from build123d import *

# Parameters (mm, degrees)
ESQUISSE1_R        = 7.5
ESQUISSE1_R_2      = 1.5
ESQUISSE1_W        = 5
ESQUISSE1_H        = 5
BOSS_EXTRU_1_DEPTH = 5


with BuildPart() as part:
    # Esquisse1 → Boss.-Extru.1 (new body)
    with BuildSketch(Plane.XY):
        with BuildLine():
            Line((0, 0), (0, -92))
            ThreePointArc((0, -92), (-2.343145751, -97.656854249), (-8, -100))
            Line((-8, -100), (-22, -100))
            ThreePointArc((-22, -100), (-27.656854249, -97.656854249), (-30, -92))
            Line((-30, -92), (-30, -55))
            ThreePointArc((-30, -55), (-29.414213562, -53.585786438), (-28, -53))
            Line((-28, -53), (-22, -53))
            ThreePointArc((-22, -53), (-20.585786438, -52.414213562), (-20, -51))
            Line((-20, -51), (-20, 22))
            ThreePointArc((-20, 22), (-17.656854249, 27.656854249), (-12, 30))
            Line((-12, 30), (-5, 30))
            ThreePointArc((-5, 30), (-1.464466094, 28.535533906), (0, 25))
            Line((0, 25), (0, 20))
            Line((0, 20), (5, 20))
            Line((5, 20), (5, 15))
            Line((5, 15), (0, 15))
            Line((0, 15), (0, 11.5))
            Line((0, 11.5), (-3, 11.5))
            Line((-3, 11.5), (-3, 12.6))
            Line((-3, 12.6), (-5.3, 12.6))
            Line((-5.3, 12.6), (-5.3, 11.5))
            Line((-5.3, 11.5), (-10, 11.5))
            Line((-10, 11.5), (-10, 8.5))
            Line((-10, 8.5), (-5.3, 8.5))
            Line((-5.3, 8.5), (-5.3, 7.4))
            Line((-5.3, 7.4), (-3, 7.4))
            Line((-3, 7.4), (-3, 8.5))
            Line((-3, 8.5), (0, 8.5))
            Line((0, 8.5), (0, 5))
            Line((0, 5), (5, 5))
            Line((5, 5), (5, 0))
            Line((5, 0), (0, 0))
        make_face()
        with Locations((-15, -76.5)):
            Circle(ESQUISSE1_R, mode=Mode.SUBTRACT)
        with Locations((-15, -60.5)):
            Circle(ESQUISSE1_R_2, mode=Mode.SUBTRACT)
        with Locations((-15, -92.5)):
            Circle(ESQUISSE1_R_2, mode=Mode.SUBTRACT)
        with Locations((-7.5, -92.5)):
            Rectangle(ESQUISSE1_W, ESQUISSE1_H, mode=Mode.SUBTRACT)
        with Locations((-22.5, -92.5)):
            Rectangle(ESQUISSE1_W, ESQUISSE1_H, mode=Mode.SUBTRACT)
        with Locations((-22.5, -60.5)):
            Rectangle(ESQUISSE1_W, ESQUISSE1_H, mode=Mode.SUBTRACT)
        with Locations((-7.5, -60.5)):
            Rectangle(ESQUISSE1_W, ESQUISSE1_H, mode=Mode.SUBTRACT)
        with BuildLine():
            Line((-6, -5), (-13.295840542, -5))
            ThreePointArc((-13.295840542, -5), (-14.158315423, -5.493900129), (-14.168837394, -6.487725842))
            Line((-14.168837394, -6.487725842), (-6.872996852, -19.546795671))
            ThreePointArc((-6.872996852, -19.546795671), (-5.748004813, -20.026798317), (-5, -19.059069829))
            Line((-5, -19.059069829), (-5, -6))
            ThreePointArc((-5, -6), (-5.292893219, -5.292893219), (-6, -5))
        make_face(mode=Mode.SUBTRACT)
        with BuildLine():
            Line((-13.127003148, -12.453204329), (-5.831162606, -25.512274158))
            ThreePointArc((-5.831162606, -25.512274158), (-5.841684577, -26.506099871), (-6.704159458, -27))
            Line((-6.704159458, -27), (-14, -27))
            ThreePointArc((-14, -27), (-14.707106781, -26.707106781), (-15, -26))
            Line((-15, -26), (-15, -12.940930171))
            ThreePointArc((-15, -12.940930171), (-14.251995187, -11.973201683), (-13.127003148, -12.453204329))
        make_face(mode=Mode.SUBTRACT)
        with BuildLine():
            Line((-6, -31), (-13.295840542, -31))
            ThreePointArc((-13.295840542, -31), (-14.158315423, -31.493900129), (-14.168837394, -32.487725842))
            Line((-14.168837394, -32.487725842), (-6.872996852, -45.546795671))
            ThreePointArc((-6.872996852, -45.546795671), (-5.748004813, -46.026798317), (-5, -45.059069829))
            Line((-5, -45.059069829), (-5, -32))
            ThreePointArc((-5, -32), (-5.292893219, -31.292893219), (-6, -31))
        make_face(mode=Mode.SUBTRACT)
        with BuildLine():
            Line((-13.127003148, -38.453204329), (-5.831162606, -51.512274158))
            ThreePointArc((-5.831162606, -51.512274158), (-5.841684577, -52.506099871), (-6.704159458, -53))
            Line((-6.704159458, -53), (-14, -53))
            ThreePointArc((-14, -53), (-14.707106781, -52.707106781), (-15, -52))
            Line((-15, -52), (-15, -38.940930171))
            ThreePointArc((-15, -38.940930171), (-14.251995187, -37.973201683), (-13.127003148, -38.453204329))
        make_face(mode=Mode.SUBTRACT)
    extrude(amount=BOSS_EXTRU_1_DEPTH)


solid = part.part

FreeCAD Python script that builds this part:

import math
import FreeCAD as App
import Part
import Sketcher
from FreeCAD import Vector


def add_polygon(sketch, points):
    """Adds a closed chain of lines whose ends are joined by coincident constraints."""
    first, n = sketch.GeometryCount, len(points)
    for a, b in zip(points, points[1:] + points[:1]):
        sketch.addGeometry(Part.LineSegment(App.Vector(*a, 0), App.Vector(*b, 0)), False)
    for i in range(n):
        sketch.addConstraint(Sketcher.Constraint("Coincident", first + i, 2, first + (i + 1) % n, 1))

doc = App.newDocument("Part")
params = doc.addObject("Spreadsheet::Sheet", "Params")
for row, (alias, value) in enumerate([
    ("sketch1_diameter", "3 mm"),
    ("sketch1_diameter2", "15 mm"),
    ("sketch1_radius", "5 mm"),
    ("sketch1_radius2", "8 mm"),
    ("sketch1_radius3", "2 mm"),
    ("pad1_length", "5 mm"),
], start=1):
    params.set(f"A{row}", alias)
    params.set(f"B{row}", "=" + value)
    params.setAlias(f"B{row}", alias)

body = doc.addObject("PartDesign::Body", "Body")

# Sketch on XY plane
sketch1 = body.newObject("Sketcher::SketchObject", "Sketch")
sketch1.AttachmentSupport = (doc.getObject("XY_Plane"), [""])
sketch1.MapMode = "FlatFace"
sketch1.addGeometry(Part.LineSegment(Vector(0, -92, 0), Vector(0, 0, 0)), False)  # 0
sketch1.addGeometry(Part.LineSegment(Vector(0, 0, 0), Vector(5, 0, 0)), False)  # 1
sketch1.addGeometry(Part.LineSegment(Vector(5, 0, 0), Vector(5, 5, 0)), False)  # 2
sketch1.addGeometry(Part.LineSegment(Vector(5, 5, 0), Vector(0, 5, 0)), False)  # 3
sketch1.addGeometry(Part.LineSegment(Vector(0, 5, 0), Vector(0, 8.5, 0)), False)  # 4
sketch1.addGeometry(Part.LineSegment(Vector(0, 8.5, 0), Vector(-3, 8.5, 0)), False)  # 5
sketch1.addGeometry(Part.LineSegment(Vector(-3, 8.5, 0), Vector(-3, 7.4, 0)), False)  # 6
sketch1.addGeometry(Part.LineSegment(Vector(-3, 7.4, 0), Vector(-5.3, 7.4, 0)), False)  # 7
sketch1.addGeometry(Part.LineSegment(Vector(-5.3, 7.4, 0), Vector(-5.3, 8.5, 0)), False)  # 8
sketch1.addGeometry(Part.LineSegment(Vector(-5.3, 8.5, 0), Vector(-10, 8.5, 0)), False)  # 9
sketch1.addGeometry(Part.LineSegment(Vector(-10, 8.5, 0), Vector(-10, 11.5, 0)), False)  # 10
sketch1.addGeometry(Part.LineSegment(Vector(-10, 11.5, 0), Vector(-5.3, 11.5, 0)), False)  # 11
sketch1.addGeometry(Part.LineSegment(Vector(-5.3, 11.5, 0), Vector(-5.3, 12.6, 0)), False)  # 12
sketch1.addGeometry(Part.LineSegment(Vector(-5.3, 12.6, 0), Vector(-3, 12.6, 0)), False)  # 13
sketch1.addGeometry(Part.LineSegment(Vector(-3, 12.6, 0), Vector(-3, 11.5, 0)), False)  # 14
sketch1.addGeometry(Part.LineSegment(Vector(-3, 11.5, 0), Vector(0, 11.5, 0)), False)  # 15
sketch1.addGeometry(Part.LineSegment(Vector(0, 11.5, 0), Vector(0, 15, 0)), False)  # 16
sketch1.addGeometry(Part.LineSegment(Vector(0, 15, 0), Vector(5, 15, 0)), False)  # 17
sketch1.addGeometry(Part.LineSegment(Vector(5, 15, 0), Vector(5, 20, 0)), False)  # 18
sketch1.addGeometry(Part.LineSegment(Vector(5, 20, 0), Vector(0, 20, 0)), False)  # 19
sketch1.addGeometry(Part.LineSegment(Vector(0, 20, 0), Vector(0, 25, 0)), False)  # 20
sketch1.addGeometry(Part.ArcOfCircle(Part.Circle(Vector(-5, 25, 0), Vector(0, 0, 1), 5), math.radians(0), math.radians(90)), False)  # 21
sketch1.addGeometry(Part.LineSegment(Vector(-5, 30, 0), Vector(-12, 30, 0)), False)  # 22
sketch1.addGeometry(Part.ArcOfCircle(Part.Circle(Vector(-12, 22, 0), Vector(0, 0, 1), 8), math.radians(90), math.radians(180)), False)  # 23
sketch1.addGeometry(Part.LineSegment(Vector(-20, 22, 0), Vector(-20, -51, 0)), False)  # 24
sketch1.addGeometry(Part.ArcOfCircle(Part.Circle(Vector(-22, -51, 0), Vector(0, 0, 1), 2), math.radians(-90), math.radians(0)), False)  # 25
sketch1.addGeometry(Part.LineSegment(Vector(-22, -53, 0), Vector(-28, -53, 0)), False)  # 26
sketch1.addGeometry(Part.ArcOfCircle(Part.Circle(Vector(-28, -55, 0), Vector(0, 0, 1), 2), math.radians(90), math.radians(180)), False)  # 27
sketch1.addGeometry(Part.LineSegment(Vector(-30, -55, 0), Vector(-30, -92, 0)), False)  # 28
sketch1.addGeometry(Part.ArcOfCircle(Part.Circle(Vector(-22, -92, 0), Vector(0, 0, 1), 8), math.radians(-180), math.radians(-90)), False)  # 29
sketch1.addGeometry(Part.LineSegment(Vector(-22, -100, 0), Vector(-8, -100, 0)), False)  # 30
sketch1.addGeometry(Part.ArcOfCircle(Part.Circle(Vector(-8, -92, 0), Vector(0, 0, 1), 8), math.radians(-90), math.radians(0)), False)  # 31
add_polygon(sketch1, [(-10, -95), (-10, -90), (-5, -90), (-5, -95)])  # lines 32-35
add_polygon(sketch1, [(-10, -63), (-10, -58), (-5, -58), (-5, -63)])  # lines 36-39
sketch1.addGeometry(Part.Circle(Vector(-15, -92.5, 0), Vector(0, 0, 1), 1.5), False)  # 40
sketch1.addGeometry(Part.Circle(Vector(-15, -76.5, 0), Vector(0, 0, 1), 7.5), False)  # 41
add_polygon(sketch1, [(-25, -95), (-25, -90), (-20, -90), (-20, -95)])  # lines 42-45
sketch1.addGeometry(Part.Circle(Vector(-15, -60.5, 0), Vector(0, 0, 1), 1.5), False)  # 46
add_polygon(sketch1, [(-25, -63), (-25, -58), (-20, -58), (-20, -63)])  # lines 47-50
sketch1.addGeometry(Part.ArcOfCircle(Part.Circle(Vector(-6, -32, 0), Vector(0, 0, 1), 1), math.radians(0), math.radians(90)), False)  # 51
sketch1.addGeometry(Part.LineSegment(Vector(-5, -32, 0), Vector(-5, -45.1, 0)), False)  # 52
sketch1.addGeometry(Part.ArcOfCircle(Part.Circle(Vector(-6, -45.1, 0), Vector(0, 0, 1), 1), math.radians(-151), math.radians(0)), False)  # 53
sketch1.addGeometry(Part.LineSegment(Vector(-6.9, -45.5, 0), Vector(-14.2, -32.5, 0)), False)  # 54
sketch1.addGeometry(Part.ArcOfCircle(Part.Circle(Vector(-13.3, -32, 0), Vector(0, 0, 1), 1), math.radians(90), math.radians(209)), False)  # 55
sketch1.addGeometry(Part.LineSegment(Vector(-13.3, -31, 0), Vector(-6, -31, 0)), False)  # 56
sketch1.addGeometry(Part.LineSegment(Vector(-13.1, -38.5, 0), Vector(-5.8, -51.5, 0)), False)  # 57
sketch1.addGeometry(Part.ArcOfCircle(Part.Circle(Vector(-6.7, -52, 0), Vector(0, 0, 1), 1), math.radians(-90), math.radians(29)), False)  # 58
sketch1.addGeometry(Part.LineSegment(Vector(-6.7, -53, 0), Vector(-14, -53, 0)), False)  # 59
sketch1.addGeometry(Part.ArcOfCircle(Part.Circle(Vector(-14, -52, 0), Vector(0, 0, 1), 1), math.radians(-180), math.radians(-90)), False)  # 60
sketch1.addGeometry(Part.LineSegment(Vector(-15, -52, 0), Vector(-15, -38.9, 0)), False)  # 61
sketch1.addGeometry(Part.ArcOfCircle(Part.Circle(Vector(-14, -38.9, 0), Vector(0, 0, 1), 1), math.radians(29), math.radians(180)), False)  # 62
sketch1.addGeometry(Part.ArcOfCircle(Part.Circle(Vector(-6, -6, 0), Vector(0, 0, 1), 1), math.radians(0), math.radians(90)), False)  # 63
sketch1.addGeometry(Part.LineSegment(Vector(-5, -6, 0), Vector(-5, -19.1, 0)), False)  # 64
sketch1.addGeometry(Part.ArcOfCircle(Part.Circle(Vector(-6, -19.1, 0), Vector(0, 0, 1), 1), math.radians(-151), math.radians(0)), False)  # 65
sketch1.addGeometry(Part.LineSegment(Vector(-6.9, -19.5, 0), Vector(-14.2, -6.5, 0)), False)  # 66
sketch1.addGeometry(Part.ArcOfCircle(Part.Circle(Vector(-13.3, -6, 0), Vector(0, 0, 1), 1), math.radians(90), math.radians(209)), False)  # 67
sketch1.addGeometry(Part.LineSegment(Vector(-13.3, -5, 0), Vector(-6, -5, 0)), False)  # 68
sketch1.addGeometry(Part.LineSegment(Vector(-13.1, -12.5, 0), Vector(-5.8, -25.5, 0)), False)  # 69
sketch1.addGeometry(Part.ArcOfCircle(Part.Circle(Vector(-6.7, -26, 0), Vector(0, 0, 1), 1), math.radians(-90), math.radians(29)), False)  # 70
sketch1.addGeometry(Part.LineSegment(Vector(-6.7, -27, 0), Vector(-14, -27, 0)), False)  # 71
sketch1.addGeometry(Part.ArcOfCircle(Part.Circle(Vector(-14, -26, 0), Vector(0, 0, 1), 1), math.radians(-180), math.radians(-90)), False)  # 72
sketch1.addGeometry(Part.LineSegment(Vector(-15, -26, 0), Vector(-15, -12.9, 0)), False)  # 73
sketch1.addGeometry(Part.ArcOfCircle(Part.Circle(Vector(-14, -12.9, 0), Vector(0, 0, 1), 1), math.radians(29), math.radians(180)), False)  # 74
sketch1.addConstraint(Sketcher.Constraint("Coincident", 0, 2, 1, 1))
sketch1.addConstraint(Sketcher.Constraint("Coincident", 1, 2, 2, 1))
sketch1.addConstraint(Sketcher.Constraint("Coincident", 2, 2, 3, 1))
sketch1.addConstraint(Sketcher.Constraint("Coincident", 3, 2, 4, 1))
sketch1.addConstraint(Sketcher.Constraint("Coincident", 4, 2, 5, 1))
sketch1.addConstraint(Sketcher.Constraint("Coincident", 5, 2, 6, 1))
sketch1.addConstraint(Sketcher.Constraint("Coincident", 6, 2, 7, 1))
sketch1.addConstraint(Sketcher.Constraint("Coincident", 7, 2, 8, 1))
sketch1.addConstraint(Sketcher.Constraint("Coincident", 8, 2, 9, 1))
sketch1.addConstraint(Sketcher.Constraint("Coincident", 9, 2, 10, 1))
sketch1.addConstraint(Sketcher.Constraint("Coincident", 10, 2, 11, 1))
sketch1.addConstraint(Sketcher.Constraint("Coincident", 11, 2, 12, 1))
sketch1.addConstraint(Sketcher.Constraint("Coincident", 12, 2, 13, 1))
sketch1.addConstraint(Sketcher.Constraint("Coincident", 13, 2, 14, 1))
sketch1.addConstraint(Sketcher.Constraint("Coincident", 14, 2, 15, 1))
sketch1.addConstraint(Sketcher.Constraint("Coincident", 15, 2, 16, 1))
sketch1.addConstraint(Sketcher.Constraint("Coincident", 16, 2, 17, 1))
sketch1.addConstraint(Sketcher.Constraint("Coincident", 17, 2, 18, 1))
sketch1.addConstraint(Sketcher.Constraint("Coincident", 18, 2, 19, 1))
sketch1.addConstraint(Sketcher.Constraint("Coincident", 19, 2, 20, 1))
sketch1.addConstraint(Sketcher.Constraint("Tangent", 20, 2, 21, 1))
sketch1.addConstraint(Sketcher.Constraint("Tangent", 21, 2, 22, 1))
sketch1.addConstraint(Sketcher.Constraint("Tangent", 22, 2, 23, 1))
sketch1.addConstraint(Sketcher.Constraint("Tangent", 23, 2, 24, 1))
sketch1.addConstraint(Sketcher.Constraint("Tangent", 24, 2, 25, 2))
sketch1.addConstraint(Sketcher.Constraint("Tangent", 25, 1, 26, 1))
sketch1.addConstraint(Sketcher.Constraint("Tangent", 26, 2, 27, 1))
sketch1.addConstraint(Sketcher.Constraint("Tangent", 27, 2, 28, 1))
sketch1.addConstraint(Sketcher.Constraint("Tangent", 28, 2, 29, 1))
sketch1.addConstraint(Sketcher.Constraint("Tangent", 29, 2, 30, 1))
sketch1.addConstraint(Sketcher.Constraint("Tangent", 30, 2, 31, 1))
sketch1.addConstraint(Sketcher.Constraint("Tangent", 31, 2, 0, 1))
sketch1.addConstraint(Sketcher.Constraint("Tangent", 51, 1, 52, 1))
sketch1.addConstraint(Sketcher.Constraint("Tangent", 52, 2, 53, 2))
sketch1.addConstraint(Sketcher.Constraint("Tangent", 53, 1, 54, 1))
sketch1.addConstraint(Sketcher.Constraint("Tangent", 54, 2, 55, 2))
sketch1.addConstraint(Sketcher.Constraint("Tangent", 55, 1, 56, 1))
sketch1.addConstraint(Sketcher.Constraint("Tangent", 56, 2, 51, 2))
sketch1.addConstraint(Sketcher.Constraint("Tangent", 57, 2, 58, 2))
sketch1.addConstraint(Sketcher.Constraint("Tangent", 58, 1, 59, 1))
sketch1.addConstraint(Sketcher.Constraint("Tangent", 59, 2, 60, 2))
sketch1.addConstraint(Sketcher.Constraint("Tangent", 60, 1, 61, 1))
sketch1.addConstraint(Sketcher.Constraint("Tangent", 61, 2, 62, 2))
sketch1.addConstraint(Sketcher.Constraint("Tangent", 62, 1, 57, 1))
sketch1.addConstraint(Sketcher.Constraint("Tangent", 63, 1, 64, 1))
sketch1.addConstraint(Sketcher.Constraint("Tangent", 64, 2, 65, 2))
sketch1.addConstraint(Sketcher.Constraint("Tangent", 65, 1, 66, 1))
sketch1.addConstraint(Sketcher.Constraint("Tangent", 66, 2, 67, 2))
sketch1.addConstraint(Sketcher.Constraint("Tangent", 67, 1, 68, 1))
sketch1.addConstraint(Sketcher.Constraint("Tangent", 68, 2, 63, 2))
sketch1.addConstraint(Sketcher.Constraint("Tangent", 69, 2, 70, 2))
sketch1.addConstraint(Sketcher.Constraint("Tangent", 70, 1, 71, 1))
sketch1.addConstraint(Sketcher.Constraint("Tangent", 71, 2, 72, 2))
sketch1.addConstraint(Sketcher.Constraint("Tangent", 72, 1, 73, 1))
sketch1.addConstraint(Sketcher.Constraint("Tangent", 73, 2, 74, 2))
sketch1.addConstraint(Sketcher.Constraint("Tangent", 74, 1, 69, 1))
sketch1.addConstraint(Sketcher.Constraint("Vertical", 0))
sketch1.addConstraint(Sketcher.Constraint("Horizontal", 1))
sketch1.addConstraint(Sketcher.Constraint("Vertical", 2))
sketch1.addConstraint(Sketcher.Constraint("Horizontal", 3))
sketch1.addConstraint(Sketcher.Constraint("Vertical", 4))
sketch1.addConstraint(Sketcher.Constraint("Horizontal", 5))
sketch1.addConstraint(Sketcher.Constraint("Vertical", 6))
sketch1.addConstraint(Sketcher.Constraint("Horizontal", 7))
sketch1.addConstraint(Sketcher.Constraint("Vertical", 8))
sketch1.addConstraint(Sketcher.Constraint("Horizontal", 9))
sketch1.addConstraint(Sketcher.Constraint("Vertical", 10))
sketch1.addConstraint(Sketcher.Constraint("Horizontal", 11))
sketch1.addConstraint(Sketcher.Constraint("Vertical", 12))
sketch1.addConstraint(Sketcher.Constraint("Horizontal", 13))
sketch1.addConstraint(Sketcher.Constraint("Vertical", 14))
sketch1.addConstraint(Sketcher.Constraint("Horizontal", 15))
sketch1.addConstraint(Sketcher.Constraint("Vertical", 16))
sketch1.addConstraint(Sketcher.Constraint("Horizontal", 17))
sketch1.addConstraint(Sketcher.Constraint("Vertical", 18))
sketch1.addConstraint(Sketcher.Constraint("Horizontal", 19))
sketch1.addConstraint(Sketcher.Constraint("Vertical", 20))
sketch1.addConstraint(Sketcher.Constraint("Horizontal", 22))
sketch1.addConstraint(Sketcher.Constraint("Vertical", 24))
sketch1.addConstraint(Sketcher.Constraint("Horizontal", 26))
sketch1.addConstraint(Sketcher.Constraint("Vertical", 28))
sketch1.addConstraint(Sketcher.Constraint("Horizontal", 30))
sketch1.addConstraint(Sketcher.Constraint("Vertical", 32))
sketch1.addConstraint(Sketcher.Constraint("Horizontal", 33))
sketch1.addConstraint(Sketcher.Constraint("Vertical", 34))
sketch1.addConstraint(Sketcher.Constraint("Horizontal", 35))
sketch1.addConstraint(Sketcher.Constraint("Vertical", 36))
sketch1.addConstraint(Sketcher.Constraint("Horizontal", 37))
sketch1.addConstraint(Sketcher.Constraint("Vertical", 38))
sketch1.addConstraint(Sketcher.Constraint("Horizontal", 39))
sketch1.addConstraint(Sketcher.Constraint("Vertical", 42))
sketch1.addConstraint(Sketcher.Constraint("Horizontal", 43))
sketch1.addConstraint(Sketcher.Constraint("Vertical", 44))
sketch1.addConstraint(Sketcher.Constraint("Horizontal", 45))
sketch1.addConstraint(Sketcher.Constraint("Vertical", 47))
sketch1.addConstraint(Sketcher.Constraint("Horizontal", 48))
sketch1.addConstraint(Sketcher.Constraint("Vertical", 49))
sketch1.addConstraint(Sketcher.Constraint("Horizontal", 50))
sketch1.addConstraint(Sketcher.Constraint("Vertical", 52))
sketch1.addConstraint(Sketcher.Constraint("Horizontal", 56))
sketch1.addConstraint(Sketcher.Constraint("Horizontal", 59))
sketch1.addConstraint(Sketcher.Constraint("Vertical", 61))
sketch1.addConstraint(Sketcher.Constraint("Vertical", 64))
sketch1.addConstraint(Sketcher.Constraint("Horizontal", 68))
sketch1.addConstraint(Sketcher.Constraint("Horizontal", 71))
sketch1.addConstraint(Sketcher.Constraint("Vertical", 73))
sketch1.addConstraint(Sketcher.Constraint("Coincident", 0, 2, -1, 1))
sketch1.addConstraint(Sketcher.Constraint("Equal", 25, 27))
sketch1.addConstraint(Sketcher.Constraint("Equal", 23, 29))
sketch1.addConstraint(Sketcher.Constraint("Equal", 29, 31))
sketch1.addConstraint(Sketcher.Constraint("Equal", 40, 46))
sketch1.addConstraint(Sketcher.Constraint("Equal", 51, 53))
sketch1.addConstraint(Sketcher.Constraint("Equal", 53, 55))
sketch1.addConstraint(Sketcher.Constraint("Equal", 55, 58))
sketch1.addConstraint(Sketcher.Constraint("Equal", 58, 60))
sketch1.addConstraint(Sketcher.Constraint("Equal", 60, 62))
sketch1.addConstraint(Sketcher.Constraint("Equal", 62, 63))
sketch1.addConstraint(Sketcher.Constraint("Equal", 63, 65))
sketch1.addConstraint(Sketcher.Constraint("Equal", 65, 67))
sketch1.addConstraint(Sketcher.Constraint("Equal", 67, 70))
sketch1.addConstraint(Sketcher.Constraint("Equal", 70, 72))
sketch1.addConstraint(Sketcher.Constraint("Equal", 72, 74))
sketch1.addConstraint(Sketcher.Constraint("PointOnObject", 3, 2, -2))
sketch1.addConstraint(Sketcher.Constraint("PointOnObject", 15, 2, -2))
sketch1.addConstraint(Sketcher.Constraint("PointOnObject", 19, 2, -2))
sketch1.addConstraint(Sketcher.Constraint("Parallel", 54, 57))
sketch1.addConstraint(Sketcher.Constraint("Parallel", 57, 66))
sketch1.addConstraint(Sketcher.Constraint("Parallel", 66, 69))
sketch1.addConstraint(Sketcher.Constraint("Horizontal", 5, 2, 8, 2))
sketch1.addConstraint(Sketcher.Constraint("Horizontal", 11, 2, 14, 2))
sketch1.addConstraint(Sketcher.Constraint("Horizontal", 33, 2, 42, 2))
sketch1.addConstraint(Sketcher.Constraint("Horizontal", 35, 2, 44, 2))
sketch1.addConstraint(Sketcher.Constraint("Horizontal", 37, 2, 47, 2))
sketch1.addConstraint(Sketcher.Constraint("Horizontal", 39, 2, 49, 2))
sketch1.addConstraint(Sketcher.Constraint("Horizontal", 26, 2, 58, 1))
sketch1.addConstraint(Sketcher.Constraint("Vertical", 25, 3, 29, 3))
sketch1.addConstraint(Sketcher.Constraint("Vertical", 40, 3, 41, 3))
sketch1.addConstraint(Sketcher.Constraint("Vertical", 41, 3, 46, 3))
sketch1.addConstraint(Sketcher.Constraint("Vertical", 53, 3, 63, 3))
sketch1.addConstraint(Sketcher.Constraint("Vertical", 55, 3, 67, 3))
sketch1.addConstraint(Sketcher.Constraint("Vertical", 58, 3, 70, 3))
sketch1.addConstraint(Sketcher.Constraint("Vertical", 62, 3, 72, 3))
sketch1.addConstraint(Sketcher.Constraint("Vertical", 8, 2, 11, 2))
sketch1.addConstraint(Sketcher.Constraint("Vertical", 6, 2, 13, 2))
sketch1.addConstraint(Sketcher.Constraint("Vertical", 2, 2, 17, 2))
sketch1.addConstraint(Sketcher.Constraint("Vertical", 10, 2, 32, 2))
sketch1.addConstraint(Sketcher.Constraint("Vertical", 21, 2, 33, 2))
sketch1.addConstraint(Sketcher.Constraint("Vertical", 35, 2, 36, 2))
sketch1.addConstraint(Sketcher.Constraint("Vertical", 34, 2, 37, 2))
sketch1.addConstraint(Sketcher.Constraint("Vertical", 24, 2, 43, 2))
sketch1.addConstraint(Sketcher.Constraint("Vertical", 45, 2, 47, 2))
sketch1.addConstraint(Sketcher.Constraint("Vertical", 44, 2, 48, 2))
sketch1.addConstraint(Sketcher.Constraint("Vertical", 38, 2, 51, 1))
sketch1.addConstraint(Sketcher.Constraint("Vertical", 46, 3, 60, 1))
sketch1.addConstraint(Sketcher.Constraint("Equal", 19, 33))
sketch1.addConstraint(Sketcher.Constraint("Equal", 39, 43))
sketch1.addConstraint(Sketcher.Constraint("Equal", 56, 59))
sketch1.addConstraint(Sketcher.Constraint("Equal", 50, 2))
sketch1.addConstraint(Sketcher.Constraint("Equal", 15, 10))
sketch1.addConstraint(Sketcher.Constraint("Equal", 8, 12))
sketch1.addConstraint(Sketcher.Constraint("Equal", 4, 16))
sketch1.addConstraint(Sketcher.Constraint("Equal", 2, 18))
sketch1.addConstraint(Sketcher.Constraint("Equal", 18, 20))
sketch1.addConstraint(Sketcher.Constraint("Equal", 20, 32))
sketch1.addConstraint(Sketcher.Constraint("Equal", 34, 36))
sketch1.addConstraint(Sketcher.Constraint("Diameter", 40, 3.0))
sketch1.addConstraint(Sketcher.Constraint("Diameter", 41, 15.0))
sketch1.addConstraint(Sketcher.Constraint("Radius", 21, 5.0))
sketch1.addConstraint(Sketcher.Constraint("Radius", 23, 8.0))
sketch1.addConstraint(Sketcher.Constraint("Radius", 25, 2.0))
sketch1.addConstraint(Sketcher.Constraint("Radius", 51, 1.0))
sketch1.addConstraint(Sketcher.Constraint("DistanceX", 1, 1, 1, 2, 5.0))
sketch1.addConstraint(Sketcher.Constraint("DistanceX", 5, 2, 5, 1, 3.0))
sketch1.addConstraint(Sketcher.Constraint("DistanceX", 22, 2, 22, 1, 7.0))
sketch1.addConstraint(Sketcher.Constraint("DistanceY", 0, 1, 0, 2, 92.0))
sketch1.addConstraint(Sketcher.Constraint("DistanceY", 24, 2, 24, 1, 73.0))
sketch1.addConstraint(Sketcher.Constraint("DistanceY", 28, 2, 28, 1, 37.0))
sketch1.addConstraint(Sketcher.Constraint("DistanceX", 7, 2, 7, 1, 2.3))
sketch1.addConstraint(Sketcher.Constraint("DistanceY", 6, 2, 6, 1, 1.1))
sketch1.addConstraint(Sketcher.Constraint("DistanceX", 40, 3, -1, 1, 15.0))
sketch1.addConstraint(Sketcher.Constraint("DistanceY", 51, 3, -1, 1, 32.0))
sketch1.addConstraint(Sketcher.Constraint("DistanceY", 63, 3, -1, 1, 6.0))
sketch1.addConstraint(Sketcher.Constraint("DistanceY", 70, 3, -1, 1, 26.0))
sketch1.addConstraint(Sketcher.Constraint("DistanceY", 32, 2, -1, 1, 90.0))
sketch1.addConstraint(Sketcher.Constraint("DistanceY", 36, 2, -1, 1, 58.0))
sketch1.addConstraint(Sketcher.Constraint("DistanceY", 40, 3, -1, 1, 92.5))
sketch1.addConstraint(Sketcher.Constraint("DistanceY", 41, 3, -1, 1, 76.5))
sketch1.addConstraint(Sketcher.Constraint("DistanceY", 46, 3, -1, 1, 60.5))
sketch1.addConstraint(Sketcher.Constraint("DistanceX", 56, 1, 56, 2, 7.295841))
sketch1.addConstraint(Sketcher.Constraint("DistanceY", 52, 2, 52, 1, 13.05907))
sketch1.setExpression("Constraints[181]", "Params.sketch1_diameter")
sketch1.setExpression("Constraints[182]", "Params.sketch1_diameter2")
sketch1.setExpression("Constraints[183]", "Params.sketch1_radius")
sketch1.setExpression("Constraints[184]", "Params.sketch1_radius2")
sketch1.setExpression("Constraints[185]", "Params.sketch1_radius3")
pad1 = body.newObject("PartDesign::Pad", "Pad")
pad1.Profile = sketch1
pad1.setExpression("Length", "Params.pad1_length")

doc.recompute()
